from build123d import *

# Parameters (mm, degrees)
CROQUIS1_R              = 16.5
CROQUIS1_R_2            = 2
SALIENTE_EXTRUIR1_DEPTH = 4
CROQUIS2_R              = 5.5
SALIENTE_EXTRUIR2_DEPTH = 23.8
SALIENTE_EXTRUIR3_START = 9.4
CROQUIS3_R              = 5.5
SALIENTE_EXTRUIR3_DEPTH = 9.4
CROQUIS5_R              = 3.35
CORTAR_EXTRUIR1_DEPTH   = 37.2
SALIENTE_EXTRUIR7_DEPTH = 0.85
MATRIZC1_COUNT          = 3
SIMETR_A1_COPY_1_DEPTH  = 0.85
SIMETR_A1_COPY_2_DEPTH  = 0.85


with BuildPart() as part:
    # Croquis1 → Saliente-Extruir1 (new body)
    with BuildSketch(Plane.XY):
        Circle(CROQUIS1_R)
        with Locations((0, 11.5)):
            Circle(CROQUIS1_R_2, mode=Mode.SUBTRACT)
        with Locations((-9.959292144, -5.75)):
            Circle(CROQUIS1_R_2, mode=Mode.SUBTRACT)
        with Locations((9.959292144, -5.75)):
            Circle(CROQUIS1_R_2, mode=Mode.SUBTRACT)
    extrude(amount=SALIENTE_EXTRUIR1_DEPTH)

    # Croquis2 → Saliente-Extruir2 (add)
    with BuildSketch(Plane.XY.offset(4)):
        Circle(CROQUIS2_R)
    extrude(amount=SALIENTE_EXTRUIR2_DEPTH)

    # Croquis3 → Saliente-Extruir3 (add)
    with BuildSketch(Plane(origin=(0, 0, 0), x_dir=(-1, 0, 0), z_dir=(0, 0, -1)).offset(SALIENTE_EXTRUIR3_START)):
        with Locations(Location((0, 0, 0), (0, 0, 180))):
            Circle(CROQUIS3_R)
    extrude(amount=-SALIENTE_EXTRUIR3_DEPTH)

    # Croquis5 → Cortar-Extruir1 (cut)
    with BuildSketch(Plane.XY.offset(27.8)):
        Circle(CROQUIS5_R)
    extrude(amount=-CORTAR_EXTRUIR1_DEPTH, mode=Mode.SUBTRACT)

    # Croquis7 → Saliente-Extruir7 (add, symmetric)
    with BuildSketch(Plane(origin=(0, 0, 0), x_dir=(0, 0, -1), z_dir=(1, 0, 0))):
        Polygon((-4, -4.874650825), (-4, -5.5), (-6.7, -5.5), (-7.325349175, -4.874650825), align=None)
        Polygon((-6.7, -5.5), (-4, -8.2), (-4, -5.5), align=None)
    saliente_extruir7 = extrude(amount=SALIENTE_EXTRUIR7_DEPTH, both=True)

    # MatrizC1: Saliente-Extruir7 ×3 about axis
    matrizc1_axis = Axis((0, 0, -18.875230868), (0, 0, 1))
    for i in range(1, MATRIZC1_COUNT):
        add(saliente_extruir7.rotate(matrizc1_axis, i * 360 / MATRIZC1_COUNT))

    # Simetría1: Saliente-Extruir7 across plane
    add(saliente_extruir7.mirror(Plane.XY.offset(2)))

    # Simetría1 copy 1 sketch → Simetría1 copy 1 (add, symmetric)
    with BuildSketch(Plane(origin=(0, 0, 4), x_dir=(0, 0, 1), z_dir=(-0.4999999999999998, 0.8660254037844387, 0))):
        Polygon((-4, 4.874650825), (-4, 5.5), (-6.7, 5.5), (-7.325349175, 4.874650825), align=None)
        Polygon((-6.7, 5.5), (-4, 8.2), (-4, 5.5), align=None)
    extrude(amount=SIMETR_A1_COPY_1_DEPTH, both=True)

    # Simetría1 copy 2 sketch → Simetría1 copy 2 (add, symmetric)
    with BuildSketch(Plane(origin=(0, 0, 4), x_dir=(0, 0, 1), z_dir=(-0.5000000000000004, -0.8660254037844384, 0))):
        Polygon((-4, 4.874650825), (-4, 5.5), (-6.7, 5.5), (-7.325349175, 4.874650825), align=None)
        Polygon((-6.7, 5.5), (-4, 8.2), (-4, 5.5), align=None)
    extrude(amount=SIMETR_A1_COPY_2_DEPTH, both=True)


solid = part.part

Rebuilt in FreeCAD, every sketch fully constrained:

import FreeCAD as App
import Part
import Sketcher
Q = App.Units.Quantity

doc = App.newDocument("Part")
params = doc.addObject("Spreadsheet::Sheet", "Params")
for row, (alias, value) in enumerate([
    ("sketch1_diameter", "33 mm"),
    ("sketch1_diameter2", "4 mm"),
    ("pad1_length", "4 mm"),
    ("sketch2_diameter", "11 mm"),
    ("pad2_length", "23.8 mm"),
    ("sketch3_diameter", "11 mm"),
    ("pad3_length", "9.4 mm"),
    ("sketch4_diameter", "6.7 mm"),
    ("pocket1_length", "37.2 mm"),
    ("pad4_length", "1.7 mm"),
    ("pad5_length", "1.7 mm"),
    ("pad6_length", "1.7 mm"),
], start=1):
    params.set(f"A{row}", alias)
    params.set(f"B{row}", "=" + value)
    params.setAlias(f"B{row}", alias)

body = doc.addObject("PartDesign::Body", "Body")

# Sketch on XY plane
sketch1 = body.newObject("Sketcher::SketchObject", "Sketch")
sketch1.AttachmentSupport = (doc.getObject("XY_Plane"), [""])
sketch1.MapMode = "FlatFace"
sketch1.addGeometry([
    Part.Circle(App.Vector(0, 0, 0), App.Vector(0, 0, 1), 16.5),
    Part.Circle(App.Vector(-10, -5.8, 0), App.Vector(0, 0, 1), 2),
    Part.Circle(App.Vector(10, -5.8, 0), App.Vector(0, 0, 1), 2),
    Part.Circle(App.Vector(0, 11.5, 0), App.Vector(0, 0, 1), 2),
], False)
sketch1.addConstraint([
    Sketcher.Constraint("Coincident", 0, 3, -1, 1),
    Sketcher.Constraint("Equal", 1, 2),
    Sketcher.Constraint("Equal", 2, 3),
    Sketcher.Constraint("Symmetric", 1, 3, 2, 3, -2),
    Sketcher.Constraint("PointOnObject", 3, 3, -2),
    Sketcher.Constraint("Diameter", 0, Q("33 mm")),
    Sketcher.Constraint("Diameter", 1, Q("4 mm")),
    Sketcher.Constraint("DistanceY", -1, 1, 3, 3, Q("11.5 mm")),
    Sketcher.Constraint("DistanceY", 1, 3, -1, 1, Q("5.75 mm")),
    Sketcher.Constraint("DistanceX", 1, 3, -1, 1, Q("9.959292 mm")),
])
sketch1.setExpression("Constraints[5]", "Params.sketch1_diameter")
sketch1.setExpression("Constraints[6]", "Params.sketch1_diameter2")
pad1 = body.newObject("PartDesign::Pad", "Pad")
pad1.Profile = sketch1
pad1.setExpression("Length", "Params.pad1_length")

# Sketch on XY plane
sketch2 = body.newObject("Sketcher::SketchObject", "Sketch001")
sketch2.AttachmentSupport = (doc.getObject("XY_Plane"), [""])
sketch2.MapMode = "FlatFace"
sketch2.AttachmentOffset = App.Placement(App.Vector(0, 0, 4), App.Rotation())
sketch2.addGeometry(Part.Circle(App.Vector(0, 0, 0), App.Vector(0, 0, 1), 6), False)
sketch2.addConstraint([
    Sketcher.Constraint("Coincident", 0, 3, -1, 1),
    Sketcher.Constraint("Diameter", 0, Q("11 mm")),
])
sketch2.setExpression("Constraints[1]", "Params.sketch2_diameter")
pad2 = body.newObject("PartDesign::Pad", "Pad001")
pad2.Profile = sketch2
pad2.setExpression("Length", "Params.pad2_length")

# Sketch on XY plane
sketch3 = body.newObject("Sketcher::SketchObject", "Sketch002")
sketch3.AttachmentSupport = (doc.getObject("XY_Plane"), [""])
sketch3.MapMode = "FlatFace"
sketch3.AttachmentOffset = App.Placement(App.Vector(0, 0, -9.4), App.Rotation())
sketch3.addGeometry(Part.Circle(App.Vector(0, 0, 0), App.Vector(0, 0, 1), 6), False)
sketch3.addConstraint([
    Sketcher.Constraint("Coincident", 0, 3, -1, 1),
    Sketcher.Constraint("Diameter", 0, Q("11 mm")),
])
sketch3.setExpression("Constraints[1]", "Params.sketch3_diameter")
pad3 = body.newObject("PartDesign::Pad", "Pad002")
pad3.Profile = sketch3
pad3.setExpression("Length", "Params.pad3_length")

# Sketch on XY plane
sketch4 = body.newObject("Sketcher::SketchObject", "Sketch003")
sketch4.AttachmentSupport = (doc.getObject("XY_Plane"), [""])
sketch4.MapMode = "FlatFace"
sketch4.AttachmentOffset = App.Placement(App.Vector(0, 0, 27.8), App.Rotation())
sketch4.addGeometry(Part.Circle(App.Vector(0, 0, 0), App.Vector(0, 0, 1), 3.4), False)
sketch4.addConstraint([
    Sketcher.Constraint("Coincident", 0, 3, -1, 1),
    Sketcher.Constraint("Diameter", 0, Q("6.7 mm")),
])
sketch4.setExpression("Constraints[1]", "Params.sketch4_diameter")
pocket1 = body.newObject("PartDesign::Pocket", "Pocket")
pocket1.Profile = sketch4
pocket1.setExpression("Length", "Params.pocket1_length")

# Sketch on YZ plane
sketch5 = body.newObject("Sketcher::SketchObject", "Sketch004")
sketch5.AttachmentSupport = (doc.getObject("YZ_Plane"), [""])
sketch5.MapMode = "FlatFace"
sketch5.addGeometry([
    Part.LineSegment(App.Vector(-8.2, 4, 0), App.Vector(-4.9, 4, 0)),
    Part.LineSegment(App.Vector(-4.9, 4, 0), App.Vector(-4.9, 7.3, 0)),
    Part.LineSegment(App.Vector(-4.9, 7.3, 0), App.Vector(-8.2, 4, 0)),
], False)
sketch5.addConstraint([
    Sketcher.Constraint("Coincident", 0, 2, 1, 1),
    Sketcher.Constraint("Coincident", 1, 2, 2, 1),
    Sketcher.Constraint("Coincident", 2, 2, 0, 1),
    Sketcher.Constraint("Horizontal", 0),
    Sketcher.Constraint("Vertical", 1),
    Sketcher.Constraint("Equal", 0, 1),
    Sketcher.Constraint("DistanceY", -1, 1, 0, 2, Q("4 mm")),
    Sketcher.Constraint("DistanceX", 2, 2, -1, 1, Q("8.2 mm")),
    Sketcher.Constraint("DistanceX", 0, 1, 0, 2, Q("3.325349 mm")),
])
pad4 = body.newObject("PartDesign::Pad", "Pad003")
pad4.Profile = sketch5
pad4.setExpression("Length", "Params.pad4_length")
pad4.Midplane = True
doc.recompute()

polarpattern = body.newObject("PartDesign::PolarPattern", "PolarPattern")
polarpattern.Originals = [pad4]
polarpattern.Axis = (doc.getObject("Z_Axis"), [""])
polarpattern.Angle = 360
polarpattern.Occurrences = 3
body.Tip = polarpattern
doc.recompute()

datumplane = body.newObject("PartDesign::Plane", "DatumPlane")
datumplane.AttachmentSupport = (doc.getObject("XY_Plane"), [""])
datumplane.MapMode = "FlatFace"
datumplane.AttachmentOffset = App.Placement(App.Vector(0, 0, 2), App.Rotation())
mirrored = body.newObject("PartDesign::Mirrored", "Mirrored")
mirrored.Originals = [pad4]
mirrored.MirrorPlane = (datumplane, [""])
body.Tip = mirrored

# Sketch on an angled plane
sketch6 = body.newObject("Sketcher::SketchObject", "Sketch005")
sketch6.Placement = App.Placement(App.Vector(0, 0, 4), App.Rotation(App.Vector(0, 0, 1), App.Vector(0.866025404, 0.5, 0), App.Vector(-0.5, 0.866025404, 0), "ZXY"))
sketch6.addGeometry([
    Part.LineSegment(App.Vector(-4, 4.9, 0), App.Vector(-4, 8.2, 0)),
    Part.LineSegment(App.Vector(-4, 8.2, 0), App.Vector(-7.3, 4.9, 0)),
    Part.LineSegment(App.Vector(-7.3, 4.9, 0), App.Vector(-4, 4.9, 0)),
], False)
sketch6.addConstraint([
    Sketcher.Constraint("Coincident", 0, 2, 1, 1),
    Sketcher.Constraint("Coincident", 1, 2, 2, 1),
    Sketcher.Constraint("Coincident", 2, 2, 0, 1),
    Sketcher.Constraint("Vertical", 0),
    Sketcher.Constraint("Horizontal", 2),
    Sketcher.Constraint("Equal", 2, 0),
    Sketcher.Constraint("DistanceX", 0, 2, -1, 1, Q("4 mm")),
    Sketcher.Constraint("DistanceY", -1, 1, 0, 2, Q("8.2 mm")),
    Sketcher.Constraint("DistanceX", 2, 1, 2, 2, Q("3.325349 mm")),
])
pad5 = body.newObject("PartDesign::Pad", "Pad004")
pad5.Profile = sketch6
pad5.setExpression("Length", "Params.pad5_length")
pad5.Midplane = True

# Sketch on an angled plane
sketch7 = body.newObject("Sketcher::SketchObject", "Sketch006")
sketch7.Placement = App.Placement(App.Vector(0, 0, 4), App.Rotation(App.Vector(0, 0, 1), App.Vector(-0.866025404, 0.5, 0), App.Vector(-0.5, -0.866025404, 0), "ZXY"))
sketch7.addGeometry([
    Part.LineSegment(App.Vector(-4, 4.9, 0), App.Vector(-4, 8.2, 0)),
    Part.LineSegment(App.Vector(-4, 8.2, 0), App.Vector(-7.3, 4.9, 0)),
    Part.LineSegment(App.Vector(-7.3, 4.9, 0), App.Vector(-4, 4.9, 0)),
], False)
sketch7.addConstraint([
    Sketcher.Constraint("Coincident", 0, 2, 1, 1),
    Sketcher.Constraint("Coincident", 1, 2, 2, 1),
    Sketcher.Constraint("Coincident", 2, 2, 0, 1),
    Sketcher.Constraint("Vertical", 0),
    Sketcher.Constraint("Horizontal", 2),
    Sketcher.Constraint("Equal", 2, 0),
    Sketcher.Constraint("DistanceX", 0, 2, -1, 1, Q("4 mm")),
    Sketcher.Constraint("DistanceY", -1, 1, 0, 2, Q("8.2 mm")),
    Sketcher.Constraint("DistanceX", 2, 1, 2, 2, Q("3.325349 mm")),
])
pad6 = body.newObject("PartDesign::Pad", "Pad005")
pad6.Profile = sketch7
pad6.setExpression("Length", "Params.pad6_length")
pad6.Midplane = True

doc.recompute()
